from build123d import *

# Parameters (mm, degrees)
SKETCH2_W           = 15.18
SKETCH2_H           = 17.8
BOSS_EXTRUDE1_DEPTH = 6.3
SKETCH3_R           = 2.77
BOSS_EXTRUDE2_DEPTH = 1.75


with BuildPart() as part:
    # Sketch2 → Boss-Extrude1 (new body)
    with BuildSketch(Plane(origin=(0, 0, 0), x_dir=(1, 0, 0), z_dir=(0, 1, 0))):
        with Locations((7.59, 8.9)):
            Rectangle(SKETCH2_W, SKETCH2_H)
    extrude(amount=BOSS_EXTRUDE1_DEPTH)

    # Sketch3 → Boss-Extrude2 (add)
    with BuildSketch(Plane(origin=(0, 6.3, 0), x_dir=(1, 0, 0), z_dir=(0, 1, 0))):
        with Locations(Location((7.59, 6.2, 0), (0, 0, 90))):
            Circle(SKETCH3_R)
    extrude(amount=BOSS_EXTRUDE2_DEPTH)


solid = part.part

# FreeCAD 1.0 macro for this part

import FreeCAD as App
import Part
import Sketcher

V = App.Vector
Q = App.Units.Quantity


def add_polygon(sketch, points):
    """Adds a closed chain of lines whose ends are joined by coincident constraints."""
    first, n = sketch.GeometryCount, len(points)
    for a, b in zip(points, points[1:] + points[:1]):
        sketch.addGeometry(Part.LineSegment(App.Vector(*a, 0), App.Vector(*b, 0)), False)
    for i in range(n):
        sketch.addConstraint(Sketcher.Constraint("Coincident", first + i, 2, first + (i + 1) % n, 1))

doc = App.newDocument("Part")
body = doc.addObject("PartDesign::Body", "Body")

# Sketch on XZ plane
sketch1 = body.newObject("Sketcher::SketchObject", "Sketch")
sketch1.AttachmentSupport = (doc.getObject("XZ_Plane"), [""])
sketch1.MapMode = "FlatFace"
add_polygon(sketch1, [(0, -18), (0, 0), (15, 0), (15, -18)])  # lines 0-3
sketch1.addConstraint([
    Sketcher.Constraint("Vertical", 0),
    Sketcher.Constraint("Horizontal", 1),
    Sketcher.Constraint("Vertical", 2),
    Sketcher.Constraint("Horizontal", 3),
    Sketcher.Constraint("Coincident", 0, 2, -1, 1),
    Sketcher.Constraint("DistanceY", 0, 1, 0, 2, Q("17.8 mm")),
    Sketcher.Constraint("DistanceX", 1, 1, 1, 2, Q("15.18 mm")),
])
pad1 = body.newObject("PartDesign::Pad", "Pad")
pad1.Profile = sketch1
pad1.Length = 6.3
pad1.Reversed = True

# Sketch on XZ plane
sketch2 = body.newObject("Sketcher::SketchObject", "Sketch001")
sketch2.AttachmentSupport = (doc.getObject("XZ_Plane"), [""])
sketch2.MapMode = "FlatFace"
sketch2.AttachmentOffset = App.Placement(V(0, 0, -6.3), App.Rotation())
sketch2.addGeometry(Part.Circle(V(7.6, -6.2, 0), V(0, 0, 1), 2.8), False)
sketch2.addConstraint([
    Sketcher.Constraint("Diameter", 0, Q("5.54 mm")),
    Sketcher.Constraint("DistanceY", 0, 3, -1, 1, Q("6.2 mm")),
    Sketcher.Constraint("DistanceX", -1, 1, 0, 3, Q("7.59 mm")),
])
pad2 = body.newObject("PartDesign::Pad", "Pad001")
pad2.Profile = sketch2
pad2.Length = 1.75
pad2.Reversed = True

doc.recompute()
